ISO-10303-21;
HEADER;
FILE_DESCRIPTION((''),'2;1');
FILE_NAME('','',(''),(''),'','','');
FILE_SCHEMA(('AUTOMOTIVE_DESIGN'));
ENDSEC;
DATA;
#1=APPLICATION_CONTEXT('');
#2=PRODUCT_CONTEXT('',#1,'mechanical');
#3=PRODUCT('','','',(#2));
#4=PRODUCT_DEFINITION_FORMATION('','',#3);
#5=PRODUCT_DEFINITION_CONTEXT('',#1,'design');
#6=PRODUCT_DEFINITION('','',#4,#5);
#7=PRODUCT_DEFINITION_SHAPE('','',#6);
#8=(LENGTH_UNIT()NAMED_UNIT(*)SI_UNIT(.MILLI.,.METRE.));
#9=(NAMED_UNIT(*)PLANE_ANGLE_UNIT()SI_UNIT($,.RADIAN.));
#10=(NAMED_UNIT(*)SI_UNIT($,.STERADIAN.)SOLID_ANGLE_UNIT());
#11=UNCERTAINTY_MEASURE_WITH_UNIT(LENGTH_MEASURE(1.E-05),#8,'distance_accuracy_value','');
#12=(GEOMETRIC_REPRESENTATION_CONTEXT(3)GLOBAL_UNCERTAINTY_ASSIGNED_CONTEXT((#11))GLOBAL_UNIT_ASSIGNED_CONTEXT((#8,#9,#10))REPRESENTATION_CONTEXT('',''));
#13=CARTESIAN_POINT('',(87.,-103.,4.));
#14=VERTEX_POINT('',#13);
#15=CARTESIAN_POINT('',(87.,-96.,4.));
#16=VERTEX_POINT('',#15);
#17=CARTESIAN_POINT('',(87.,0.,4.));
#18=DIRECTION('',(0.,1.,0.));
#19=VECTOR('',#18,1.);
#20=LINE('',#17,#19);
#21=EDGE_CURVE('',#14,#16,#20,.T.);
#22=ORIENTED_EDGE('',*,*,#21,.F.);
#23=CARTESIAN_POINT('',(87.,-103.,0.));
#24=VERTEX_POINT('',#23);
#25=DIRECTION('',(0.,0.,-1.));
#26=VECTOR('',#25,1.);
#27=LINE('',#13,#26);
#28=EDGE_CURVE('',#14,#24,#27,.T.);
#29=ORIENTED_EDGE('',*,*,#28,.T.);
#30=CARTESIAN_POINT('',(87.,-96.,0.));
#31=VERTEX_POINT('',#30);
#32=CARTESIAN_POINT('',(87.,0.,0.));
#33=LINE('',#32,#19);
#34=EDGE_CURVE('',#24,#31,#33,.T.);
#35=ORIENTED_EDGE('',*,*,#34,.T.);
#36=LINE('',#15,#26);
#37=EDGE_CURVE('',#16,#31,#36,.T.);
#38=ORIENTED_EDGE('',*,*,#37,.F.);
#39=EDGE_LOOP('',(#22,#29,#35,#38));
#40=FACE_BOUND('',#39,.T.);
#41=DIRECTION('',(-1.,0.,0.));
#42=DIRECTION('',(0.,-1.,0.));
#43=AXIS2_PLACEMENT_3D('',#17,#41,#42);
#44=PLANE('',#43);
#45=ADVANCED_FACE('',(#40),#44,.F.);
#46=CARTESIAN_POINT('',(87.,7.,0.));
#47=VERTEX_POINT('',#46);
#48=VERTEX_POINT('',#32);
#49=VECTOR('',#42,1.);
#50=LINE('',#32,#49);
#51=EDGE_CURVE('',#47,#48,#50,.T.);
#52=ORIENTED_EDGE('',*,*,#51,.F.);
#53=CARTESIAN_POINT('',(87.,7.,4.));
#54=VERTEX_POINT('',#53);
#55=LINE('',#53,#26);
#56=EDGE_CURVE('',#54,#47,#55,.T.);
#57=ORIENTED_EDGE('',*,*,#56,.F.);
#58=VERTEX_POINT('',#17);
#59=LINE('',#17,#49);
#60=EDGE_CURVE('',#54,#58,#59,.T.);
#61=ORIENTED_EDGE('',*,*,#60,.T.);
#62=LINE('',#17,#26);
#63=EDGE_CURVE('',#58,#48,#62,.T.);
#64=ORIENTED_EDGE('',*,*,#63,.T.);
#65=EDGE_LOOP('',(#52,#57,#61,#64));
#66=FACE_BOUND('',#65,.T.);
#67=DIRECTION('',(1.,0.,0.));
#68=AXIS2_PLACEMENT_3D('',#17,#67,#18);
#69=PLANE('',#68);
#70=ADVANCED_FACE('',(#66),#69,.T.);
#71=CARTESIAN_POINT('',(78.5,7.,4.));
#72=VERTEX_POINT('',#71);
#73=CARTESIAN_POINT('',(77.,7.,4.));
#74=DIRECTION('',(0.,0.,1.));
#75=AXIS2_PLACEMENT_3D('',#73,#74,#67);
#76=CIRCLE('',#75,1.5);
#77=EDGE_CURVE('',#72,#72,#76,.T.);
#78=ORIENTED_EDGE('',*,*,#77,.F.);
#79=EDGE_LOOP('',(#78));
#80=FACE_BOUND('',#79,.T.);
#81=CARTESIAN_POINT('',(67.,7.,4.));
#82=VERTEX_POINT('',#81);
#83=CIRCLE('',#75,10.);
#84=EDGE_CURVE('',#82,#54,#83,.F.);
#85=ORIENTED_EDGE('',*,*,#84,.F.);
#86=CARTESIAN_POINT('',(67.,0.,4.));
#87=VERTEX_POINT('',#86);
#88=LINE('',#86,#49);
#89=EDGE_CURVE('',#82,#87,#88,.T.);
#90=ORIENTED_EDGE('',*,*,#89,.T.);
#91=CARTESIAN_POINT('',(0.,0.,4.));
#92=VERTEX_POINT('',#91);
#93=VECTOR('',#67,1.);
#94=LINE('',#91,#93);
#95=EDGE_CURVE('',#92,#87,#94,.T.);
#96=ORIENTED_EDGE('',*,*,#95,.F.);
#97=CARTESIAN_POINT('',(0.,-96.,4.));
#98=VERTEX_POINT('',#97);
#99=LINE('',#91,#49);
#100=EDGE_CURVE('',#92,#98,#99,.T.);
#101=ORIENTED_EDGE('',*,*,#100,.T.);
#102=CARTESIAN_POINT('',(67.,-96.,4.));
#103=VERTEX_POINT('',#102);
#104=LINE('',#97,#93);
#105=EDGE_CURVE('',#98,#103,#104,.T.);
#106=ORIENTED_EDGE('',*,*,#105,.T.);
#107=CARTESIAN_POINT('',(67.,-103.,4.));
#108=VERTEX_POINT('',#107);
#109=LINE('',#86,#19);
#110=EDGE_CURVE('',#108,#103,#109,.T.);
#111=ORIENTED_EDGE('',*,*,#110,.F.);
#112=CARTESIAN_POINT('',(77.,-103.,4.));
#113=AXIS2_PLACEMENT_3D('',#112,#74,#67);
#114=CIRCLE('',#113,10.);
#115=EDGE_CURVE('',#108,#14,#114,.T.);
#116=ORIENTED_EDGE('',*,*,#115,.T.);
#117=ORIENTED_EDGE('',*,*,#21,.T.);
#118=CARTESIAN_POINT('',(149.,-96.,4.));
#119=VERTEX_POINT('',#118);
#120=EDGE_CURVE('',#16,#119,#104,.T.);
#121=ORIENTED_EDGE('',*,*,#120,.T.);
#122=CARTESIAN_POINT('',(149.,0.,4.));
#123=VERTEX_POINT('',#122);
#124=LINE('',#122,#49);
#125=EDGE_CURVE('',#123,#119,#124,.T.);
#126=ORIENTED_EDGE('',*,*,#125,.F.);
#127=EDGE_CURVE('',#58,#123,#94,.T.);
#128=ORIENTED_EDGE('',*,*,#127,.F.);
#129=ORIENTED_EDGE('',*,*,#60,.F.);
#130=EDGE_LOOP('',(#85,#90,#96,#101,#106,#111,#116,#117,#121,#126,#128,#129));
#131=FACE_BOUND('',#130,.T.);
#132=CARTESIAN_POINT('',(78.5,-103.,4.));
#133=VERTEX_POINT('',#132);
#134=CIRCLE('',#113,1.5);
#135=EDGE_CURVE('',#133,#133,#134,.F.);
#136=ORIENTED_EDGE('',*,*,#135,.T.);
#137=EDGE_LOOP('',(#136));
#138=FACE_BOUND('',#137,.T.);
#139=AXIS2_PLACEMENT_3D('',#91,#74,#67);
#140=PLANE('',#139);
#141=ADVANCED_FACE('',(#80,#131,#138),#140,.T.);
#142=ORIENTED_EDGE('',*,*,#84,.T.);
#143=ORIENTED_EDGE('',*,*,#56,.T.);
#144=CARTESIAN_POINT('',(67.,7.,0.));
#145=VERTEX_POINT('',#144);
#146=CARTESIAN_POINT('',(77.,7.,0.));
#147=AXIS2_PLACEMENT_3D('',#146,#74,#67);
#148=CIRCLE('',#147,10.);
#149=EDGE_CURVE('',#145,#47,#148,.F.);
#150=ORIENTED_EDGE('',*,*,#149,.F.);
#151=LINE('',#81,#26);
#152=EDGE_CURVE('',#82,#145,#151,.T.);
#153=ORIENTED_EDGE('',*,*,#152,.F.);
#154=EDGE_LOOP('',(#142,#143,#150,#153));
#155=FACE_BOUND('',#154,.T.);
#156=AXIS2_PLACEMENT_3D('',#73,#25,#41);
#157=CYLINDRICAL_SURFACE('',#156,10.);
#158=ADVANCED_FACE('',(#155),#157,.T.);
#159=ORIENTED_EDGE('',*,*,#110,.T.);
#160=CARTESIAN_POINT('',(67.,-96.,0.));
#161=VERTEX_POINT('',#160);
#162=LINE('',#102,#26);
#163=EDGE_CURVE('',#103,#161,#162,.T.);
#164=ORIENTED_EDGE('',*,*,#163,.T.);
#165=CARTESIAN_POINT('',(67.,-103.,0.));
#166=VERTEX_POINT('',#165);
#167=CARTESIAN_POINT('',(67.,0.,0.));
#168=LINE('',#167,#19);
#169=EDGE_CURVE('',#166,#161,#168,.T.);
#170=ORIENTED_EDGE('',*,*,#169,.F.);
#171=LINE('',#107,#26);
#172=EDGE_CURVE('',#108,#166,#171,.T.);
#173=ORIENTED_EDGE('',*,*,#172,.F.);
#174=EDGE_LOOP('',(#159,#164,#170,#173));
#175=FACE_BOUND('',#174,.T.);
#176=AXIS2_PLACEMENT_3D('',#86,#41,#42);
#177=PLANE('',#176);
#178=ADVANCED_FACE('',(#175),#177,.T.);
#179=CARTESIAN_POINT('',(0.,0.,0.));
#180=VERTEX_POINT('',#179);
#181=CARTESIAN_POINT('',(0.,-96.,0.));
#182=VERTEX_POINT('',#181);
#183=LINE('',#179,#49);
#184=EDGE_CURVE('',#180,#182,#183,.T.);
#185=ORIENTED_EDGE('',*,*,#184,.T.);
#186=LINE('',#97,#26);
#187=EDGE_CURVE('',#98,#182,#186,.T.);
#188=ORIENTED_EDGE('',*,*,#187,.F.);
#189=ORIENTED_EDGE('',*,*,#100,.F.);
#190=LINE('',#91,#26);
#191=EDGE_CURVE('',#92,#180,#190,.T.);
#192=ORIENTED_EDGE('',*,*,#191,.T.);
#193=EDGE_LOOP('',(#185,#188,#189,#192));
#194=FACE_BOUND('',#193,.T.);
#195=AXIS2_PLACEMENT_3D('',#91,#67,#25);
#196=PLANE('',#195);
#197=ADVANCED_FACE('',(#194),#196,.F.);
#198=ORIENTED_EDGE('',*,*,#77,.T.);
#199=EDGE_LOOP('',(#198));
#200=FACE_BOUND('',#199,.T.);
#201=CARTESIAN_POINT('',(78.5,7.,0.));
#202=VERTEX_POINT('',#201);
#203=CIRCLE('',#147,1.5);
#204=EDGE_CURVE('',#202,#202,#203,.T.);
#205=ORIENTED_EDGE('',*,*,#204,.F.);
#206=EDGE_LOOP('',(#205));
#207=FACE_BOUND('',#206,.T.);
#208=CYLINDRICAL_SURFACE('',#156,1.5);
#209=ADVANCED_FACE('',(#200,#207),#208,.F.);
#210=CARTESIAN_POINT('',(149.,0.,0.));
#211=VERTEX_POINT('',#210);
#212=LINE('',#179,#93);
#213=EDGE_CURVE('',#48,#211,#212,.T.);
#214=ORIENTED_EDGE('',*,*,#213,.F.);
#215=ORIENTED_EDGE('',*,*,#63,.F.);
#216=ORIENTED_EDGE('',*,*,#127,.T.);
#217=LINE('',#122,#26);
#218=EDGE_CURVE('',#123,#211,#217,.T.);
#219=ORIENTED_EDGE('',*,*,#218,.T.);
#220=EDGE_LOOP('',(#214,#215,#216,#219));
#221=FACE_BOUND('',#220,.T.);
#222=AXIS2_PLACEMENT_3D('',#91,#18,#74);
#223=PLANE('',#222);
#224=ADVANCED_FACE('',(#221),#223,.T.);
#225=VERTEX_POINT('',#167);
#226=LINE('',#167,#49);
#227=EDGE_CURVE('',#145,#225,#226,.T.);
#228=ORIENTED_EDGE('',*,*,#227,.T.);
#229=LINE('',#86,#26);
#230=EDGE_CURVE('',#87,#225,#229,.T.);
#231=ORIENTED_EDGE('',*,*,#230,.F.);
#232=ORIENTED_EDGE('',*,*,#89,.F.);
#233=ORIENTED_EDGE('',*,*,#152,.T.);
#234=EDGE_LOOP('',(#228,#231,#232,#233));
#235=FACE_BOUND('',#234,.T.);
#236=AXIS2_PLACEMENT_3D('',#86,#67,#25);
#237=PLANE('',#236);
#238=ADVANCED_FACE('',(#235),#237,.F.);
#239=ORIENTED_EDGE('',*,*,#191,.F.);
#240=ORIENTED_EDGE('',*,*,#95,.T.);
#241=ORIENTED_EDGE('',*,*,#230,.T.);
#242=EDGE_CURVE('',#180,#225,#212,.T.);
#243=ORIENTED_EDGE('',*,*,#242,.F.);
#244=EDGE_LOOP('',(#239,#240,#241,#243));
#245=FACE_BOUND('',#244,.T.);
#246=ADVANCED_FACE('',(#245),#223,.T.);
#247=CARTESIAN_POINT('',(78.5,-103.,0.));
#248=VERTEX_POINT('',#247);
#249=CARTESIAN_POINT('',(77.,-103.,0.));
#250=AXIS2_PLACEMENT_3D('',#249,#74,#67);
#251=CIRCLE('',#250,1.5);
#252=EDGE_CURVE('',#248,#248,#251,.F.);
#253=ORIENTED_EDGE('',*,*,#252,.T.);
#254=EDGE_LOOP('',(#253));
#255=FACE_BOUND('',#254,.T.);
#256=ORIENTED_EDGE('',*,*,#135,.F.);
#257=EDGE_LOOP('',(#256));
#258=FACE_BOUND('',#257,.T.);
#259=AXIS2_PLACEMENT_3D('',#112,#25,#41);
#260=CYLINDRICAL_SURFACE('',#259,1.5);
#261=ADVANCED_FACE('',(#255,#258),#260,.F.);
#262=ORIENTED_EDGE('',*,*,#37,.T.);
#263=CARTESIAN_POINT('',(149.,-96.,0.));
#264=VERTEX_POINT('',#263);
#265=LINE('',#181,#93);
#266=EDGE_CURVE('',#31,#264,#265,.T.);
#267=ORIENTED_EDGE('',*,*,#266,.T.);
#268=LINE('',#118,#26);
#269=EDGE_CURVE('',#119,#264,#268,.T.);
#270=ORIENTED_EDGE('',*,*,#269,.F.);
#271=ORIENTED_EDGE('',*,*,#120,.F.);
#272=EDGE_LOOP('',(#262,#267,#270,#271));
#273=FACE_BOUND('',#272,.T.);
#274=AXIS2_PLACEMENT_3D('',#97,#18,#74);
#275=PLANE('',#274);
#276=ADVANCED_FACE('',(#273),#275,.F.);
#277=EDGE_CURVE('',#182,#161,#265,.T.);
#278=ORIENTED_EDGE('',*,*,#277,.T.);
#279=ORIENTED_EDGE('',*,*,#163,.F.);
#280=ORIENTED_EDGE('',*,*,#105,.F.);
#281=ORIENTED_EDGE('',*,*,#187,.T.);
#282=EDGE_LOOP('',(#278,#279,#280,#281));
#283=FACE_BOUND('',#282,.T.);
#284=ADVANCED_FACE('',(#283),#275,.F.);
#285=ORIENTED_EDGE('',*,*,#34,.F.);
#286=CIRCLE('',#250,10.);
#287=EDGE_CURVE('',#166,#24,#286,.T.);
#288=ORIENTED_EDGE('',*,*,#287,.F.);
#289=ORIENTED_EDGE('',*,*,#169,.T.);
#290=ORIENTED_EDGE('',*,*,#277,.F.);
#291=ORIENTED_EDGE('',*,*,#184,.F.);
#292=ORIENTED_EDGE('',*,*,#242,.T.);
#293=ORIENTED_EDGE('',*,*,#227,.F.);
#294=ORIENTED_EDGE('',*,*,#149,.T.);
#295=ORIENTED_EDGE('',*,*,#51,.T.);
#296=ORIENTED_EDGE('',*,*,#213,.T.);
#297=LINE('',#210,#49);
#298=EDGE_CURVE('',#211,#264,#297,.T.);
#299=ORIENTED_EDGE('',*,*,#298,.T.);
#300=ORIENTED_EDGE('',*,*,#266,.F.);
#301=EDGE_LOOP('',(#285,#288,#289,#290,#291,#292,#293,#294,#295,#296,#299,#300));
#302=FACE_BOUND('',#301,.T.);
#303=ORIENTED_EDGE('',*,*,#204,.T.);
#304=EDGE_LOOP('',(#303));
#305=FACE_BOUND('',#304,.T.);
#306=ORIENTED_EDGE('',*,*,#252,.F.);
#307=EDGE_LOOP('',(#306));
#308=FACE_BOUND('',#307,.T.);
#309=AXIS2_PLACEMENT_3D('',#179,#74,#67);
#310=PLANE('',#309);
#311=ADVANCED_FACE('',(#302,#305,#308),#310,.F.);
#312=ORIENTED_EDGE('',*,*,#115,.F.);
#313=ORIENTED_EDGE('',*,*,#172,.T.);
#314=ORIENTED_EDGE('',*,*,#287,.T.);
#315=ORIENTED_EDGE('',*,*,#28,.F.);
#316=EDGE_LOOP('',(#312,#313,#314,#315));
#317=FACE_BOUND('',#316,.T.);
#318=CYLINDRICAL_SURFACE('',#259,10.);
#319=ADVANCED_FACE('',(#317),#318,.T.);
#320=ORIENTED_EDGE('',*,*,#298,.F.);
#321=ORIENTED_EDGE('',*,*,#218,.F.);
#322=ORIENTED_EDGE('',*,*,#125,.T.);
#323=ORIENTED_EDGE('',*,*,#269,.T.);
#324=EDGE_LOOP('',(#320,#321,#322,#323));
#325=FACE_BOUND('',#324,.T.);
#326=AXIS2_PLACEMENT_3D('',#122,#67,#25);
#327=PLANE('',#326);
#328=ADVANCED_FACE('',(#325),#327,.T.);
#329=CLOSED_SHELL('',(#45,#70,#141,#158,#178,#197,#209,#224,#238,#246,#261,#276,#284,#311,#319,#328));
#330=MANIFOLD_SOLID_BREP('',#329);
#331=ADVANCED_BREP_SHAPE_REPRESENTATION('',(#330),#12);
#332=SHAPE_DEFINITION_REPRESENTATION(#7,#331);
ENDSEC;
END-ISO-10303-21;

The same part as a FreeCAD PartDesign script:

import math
import FreeCAD as App
import Part
import Sketcher

doc = App.newDocument("Part")
body = doc.addObject("PartDesign::Body", "Body")

sketch1 = body.newObject("Sketcher::SketchObject", "Sketch")
sketch1.AttachmentSupport = (doc.getObject("XY_Plane"), [""])
sketch1.MapMode = "FlatFace"
sketch1.addGeometry([
    Part.LineSegment(App.Vector(0, 0, 0), App.Vector(0, -96, 0)),
    Part.LineSegment(App.Vector(0, -96, 0), App.Vector(67, -96, 0)),
    Part.LineSegment(App.Vector(67, -96, 0), App.Vector(67, -103, 0)),
    Part.ArcOfCircle(Part.Circle(App.Vector(77, -103, 0), App.Vector(0, 0, 1), 10), math.radians(180), math.radians(360)),
    Part.LineSegment(App.Vector(87, -103, 0), App.Vector(87, -96, 0)),
    Part.LineSegment(App.Vector(87, -96, 0), App.Vector(149, -96, 0)),
    Part.LineSegment(App.Vector(149, -96, 0), App.Vector(149, 0, 0)),
    Part.LineSegment(App.Vector(149, 0, 0), App.Vector(87, 0, 0)),
    Part.LineSegment(App.Vector(87, 0, 0), App.Vector(87, 7, 0)),
    Part.ArcOfCircle(Part.Circle(App.Vector(77, 7, 0), App.Vector(0, 0, 1), 10), math.radians(0), math.radians(180)),
    Part.LineSegment(App.Vector(67, 7, 0), App.Vector(67, 0, 0)),
    Part.LineSegment(App.Vector(67, 0, 0), App.Vector(0, 0, 0)),
    Part.Circle(App.Vector(77, -103, 0), App.Vector(0, 0, 1), 1.5),
    Part.Circle(App.Vector(77, 7, 0), App.Vector(0, 0, 1), 1.5),
], False)
sketch1.addConstraint([
    Sketcher.Constraint("Coincident", 0, 2, 1, 1),
    Sketcher.Constraint("Coincident", 1, 2, 2, 1),
    Sketcher.Constraint("Tangent", 2, 2, 3, 1),
    Sketcher.Constraint("Tangent", 3, 2, 4, 1),
    Sketcher.Constraint("Coincident", 4, 2, 5, 1),
    Sketcher.Constraint("Coincident", 5, 2, 6, 1),
    Sketcher.Constraint("Coincident", 6, 2, 7, 1),
    Sketcher.Constraint("Coincident", 7, 2, 8, 1),
    Sketcher.Constraint("Tangent", 8, 2, 9, 1),
    Sketcher.Constraint("Tangent", 9, 2, 10, 1),
    Sketcher.Constraint("Coincident", 10, 2, 11, 1),
    Sketcher.Constraint("Coincident", 11, 2, 0, 1),
    Sketcher.Constraint("Vertical", 0),
    Sketcher.Constraint("Horizontal", 1),
    Sketcher.Constraint("Vertical", 2),
    Sketcher.Constraint("Vertical", 4),
    Sketcher.Constraint("Horizontal", 5),
    Sketcher.Constraint("Vertical", 6),
    Sketcher.Constraint("Horizontal", 7),
    Sketcher.Constraint("Vertical", 8),
    Sketcher.Constraint("Vertical", 10),
    Sketcher.Constraint("Horizontal", 11),
    Sketcher.Constraint("Coincident", 11, 2, -1, 1),
    Sketcher.Constraint("Coincident", 12, 3, 3, 3),
    Sketcher.Constraint("Coincident", 13, 3, 9, 3),
    Sketcher.Constraint("Equal", 3, 9),
    Sketcher.Constraint("Equal", 12, 13),
    Sketcher.Constraint("PointOnObject", 6, 2, -1),
    Sketcher.Constraint("Horizontal", 1, 2, 4, 2),
    Sketcher.Constraint("Vertical", 3, 3, 9, 3),
    Sketcher.Constraint("Equal", 4, 8),
    Sketcher.Constraint("Diameter", 12, 3.0),
    Sketcher.Constraint("Radius", 3, 10.0),
    Sketcher.Constraint("DistanceX", 1, 1, 1, 2, 67.0),
    Sketcher.Constraint("DistanceX", 5, 1, 5, 2, 62.0),
    Sketcher.Constraint("DistanceY", 0, 2, 0, 1, 96.0),
    Sketcher.Constraint("DistanceY", 2, 2, 2, 1, 7.0),
])
pad1 = body.newObject("PartDesign::Pad", "Pad")
pad1.Profile = sketch1
pad1.Length = 4

doc.recompute()
